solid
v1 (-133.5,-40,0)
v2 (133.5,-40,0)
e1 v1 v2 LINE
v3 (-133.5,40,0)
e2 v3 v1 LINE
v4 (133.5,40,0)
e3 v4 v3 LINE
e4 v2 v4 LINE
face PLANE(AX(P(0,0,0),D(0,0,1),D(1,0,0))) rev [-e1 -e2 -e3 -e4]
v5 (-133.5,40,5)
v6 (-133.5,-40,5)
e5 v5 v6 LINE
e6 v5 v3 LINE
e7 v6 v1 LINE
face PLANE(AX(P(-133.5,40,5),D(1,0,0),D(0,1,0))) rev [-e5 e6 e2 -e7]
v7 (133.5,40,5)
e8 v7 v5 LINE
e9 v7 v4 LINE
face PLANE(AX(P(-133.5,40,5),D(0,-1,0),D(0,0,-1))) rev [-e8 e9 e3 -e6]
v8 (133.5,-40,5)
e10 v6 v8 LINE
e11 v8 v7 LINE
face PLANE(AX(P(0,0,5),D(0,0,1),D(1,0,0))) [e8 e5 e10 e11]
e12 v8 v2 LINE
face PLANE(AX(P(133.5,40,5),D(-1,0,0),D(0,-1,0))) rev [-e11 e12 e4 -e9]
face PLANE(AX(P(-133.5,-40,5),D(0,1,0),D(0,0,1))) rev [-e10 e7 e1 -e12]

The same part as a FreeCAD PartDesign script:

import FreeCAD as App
import Part
import Sketcher

V = App.Vector
Q = App.Units.Quantity


def add_polygon(sketch, points):
    """Adds a closed chain of lines whose ends are joined by coincident constraints."""
    first, n = sketch.GeometryCount, len(points)
    for a, b in zip(points, points[1:] + points[:1]):
        sketch.addGeometry(Part.LineSegment(App.Vector(*a, 0), App.Vector(*b, 0)), False)
    for i in range(n):
        sketch.addConstraint(Sketcher.Constraint("Coincident", first + i, 2, first + (i + 1) % n, 1))

doc = App.newDocument("Part")
params = doc.addObject("Spreadsheet::Sheet", "Params")
for row, (alias, value) in enumerate([
    ("sketch1_width", "267 mm"),
    ("sketch1_height", "80 mm"),
    ("pad1_length", "5 mm"),
], start=1):
    params.set(f"A{row}", alias)
    params.set(f"B{row}", "=" + value)
    params.setAlias(f"B{row}", alias)

body = doc.addObject("PartDesign::Body", "Body")

# Sketch on XY plane
sketch1 = doc.addObject("Sketcher::SketchObject", "Sketch")
body.addObject(sketch1)
sketch1.AttachmentSupport = (doc.XY_Plane, [""])
sketch1.MapMode = "FlatFace"
add_polygon(sketch1, [(-134, 40), (-134, -40), (134, -40), (134, 40)])  # lines 0-3
sketch1.addConstraint([
    Sketcher.Constraint("Vertical", 0),
    Sketcher.Constraint("Horizontal", 1),
    Sketcher.Constraint("Vertical", 2),
    Sketcher.Constraint("Horizontal", 3),
    Sketcher.Constraint("Symmetric", 0, 2, 2, 2, -1, 1),
    Sketcher.Constraint("DistanceX", 1, 1, 1, 2, Q("267 mm")),
    Sketcher.Constraint("DistanceY", 0, 2, 0, 1, Q("80 mm")),
])
sketch1.setExpression("Constraints[9]", "Params.sketch1_width")
sketch1.setExpression("Constraints[10]", "Params.sketch1_height")
pad1 = doc.addObject("PartDesign::Pad", "Pad")
body.addObject(pad1)
pad1.Profile = sketch1
pad1.setExpression("Length", "Params.pad1_length")

doc.recompute()
